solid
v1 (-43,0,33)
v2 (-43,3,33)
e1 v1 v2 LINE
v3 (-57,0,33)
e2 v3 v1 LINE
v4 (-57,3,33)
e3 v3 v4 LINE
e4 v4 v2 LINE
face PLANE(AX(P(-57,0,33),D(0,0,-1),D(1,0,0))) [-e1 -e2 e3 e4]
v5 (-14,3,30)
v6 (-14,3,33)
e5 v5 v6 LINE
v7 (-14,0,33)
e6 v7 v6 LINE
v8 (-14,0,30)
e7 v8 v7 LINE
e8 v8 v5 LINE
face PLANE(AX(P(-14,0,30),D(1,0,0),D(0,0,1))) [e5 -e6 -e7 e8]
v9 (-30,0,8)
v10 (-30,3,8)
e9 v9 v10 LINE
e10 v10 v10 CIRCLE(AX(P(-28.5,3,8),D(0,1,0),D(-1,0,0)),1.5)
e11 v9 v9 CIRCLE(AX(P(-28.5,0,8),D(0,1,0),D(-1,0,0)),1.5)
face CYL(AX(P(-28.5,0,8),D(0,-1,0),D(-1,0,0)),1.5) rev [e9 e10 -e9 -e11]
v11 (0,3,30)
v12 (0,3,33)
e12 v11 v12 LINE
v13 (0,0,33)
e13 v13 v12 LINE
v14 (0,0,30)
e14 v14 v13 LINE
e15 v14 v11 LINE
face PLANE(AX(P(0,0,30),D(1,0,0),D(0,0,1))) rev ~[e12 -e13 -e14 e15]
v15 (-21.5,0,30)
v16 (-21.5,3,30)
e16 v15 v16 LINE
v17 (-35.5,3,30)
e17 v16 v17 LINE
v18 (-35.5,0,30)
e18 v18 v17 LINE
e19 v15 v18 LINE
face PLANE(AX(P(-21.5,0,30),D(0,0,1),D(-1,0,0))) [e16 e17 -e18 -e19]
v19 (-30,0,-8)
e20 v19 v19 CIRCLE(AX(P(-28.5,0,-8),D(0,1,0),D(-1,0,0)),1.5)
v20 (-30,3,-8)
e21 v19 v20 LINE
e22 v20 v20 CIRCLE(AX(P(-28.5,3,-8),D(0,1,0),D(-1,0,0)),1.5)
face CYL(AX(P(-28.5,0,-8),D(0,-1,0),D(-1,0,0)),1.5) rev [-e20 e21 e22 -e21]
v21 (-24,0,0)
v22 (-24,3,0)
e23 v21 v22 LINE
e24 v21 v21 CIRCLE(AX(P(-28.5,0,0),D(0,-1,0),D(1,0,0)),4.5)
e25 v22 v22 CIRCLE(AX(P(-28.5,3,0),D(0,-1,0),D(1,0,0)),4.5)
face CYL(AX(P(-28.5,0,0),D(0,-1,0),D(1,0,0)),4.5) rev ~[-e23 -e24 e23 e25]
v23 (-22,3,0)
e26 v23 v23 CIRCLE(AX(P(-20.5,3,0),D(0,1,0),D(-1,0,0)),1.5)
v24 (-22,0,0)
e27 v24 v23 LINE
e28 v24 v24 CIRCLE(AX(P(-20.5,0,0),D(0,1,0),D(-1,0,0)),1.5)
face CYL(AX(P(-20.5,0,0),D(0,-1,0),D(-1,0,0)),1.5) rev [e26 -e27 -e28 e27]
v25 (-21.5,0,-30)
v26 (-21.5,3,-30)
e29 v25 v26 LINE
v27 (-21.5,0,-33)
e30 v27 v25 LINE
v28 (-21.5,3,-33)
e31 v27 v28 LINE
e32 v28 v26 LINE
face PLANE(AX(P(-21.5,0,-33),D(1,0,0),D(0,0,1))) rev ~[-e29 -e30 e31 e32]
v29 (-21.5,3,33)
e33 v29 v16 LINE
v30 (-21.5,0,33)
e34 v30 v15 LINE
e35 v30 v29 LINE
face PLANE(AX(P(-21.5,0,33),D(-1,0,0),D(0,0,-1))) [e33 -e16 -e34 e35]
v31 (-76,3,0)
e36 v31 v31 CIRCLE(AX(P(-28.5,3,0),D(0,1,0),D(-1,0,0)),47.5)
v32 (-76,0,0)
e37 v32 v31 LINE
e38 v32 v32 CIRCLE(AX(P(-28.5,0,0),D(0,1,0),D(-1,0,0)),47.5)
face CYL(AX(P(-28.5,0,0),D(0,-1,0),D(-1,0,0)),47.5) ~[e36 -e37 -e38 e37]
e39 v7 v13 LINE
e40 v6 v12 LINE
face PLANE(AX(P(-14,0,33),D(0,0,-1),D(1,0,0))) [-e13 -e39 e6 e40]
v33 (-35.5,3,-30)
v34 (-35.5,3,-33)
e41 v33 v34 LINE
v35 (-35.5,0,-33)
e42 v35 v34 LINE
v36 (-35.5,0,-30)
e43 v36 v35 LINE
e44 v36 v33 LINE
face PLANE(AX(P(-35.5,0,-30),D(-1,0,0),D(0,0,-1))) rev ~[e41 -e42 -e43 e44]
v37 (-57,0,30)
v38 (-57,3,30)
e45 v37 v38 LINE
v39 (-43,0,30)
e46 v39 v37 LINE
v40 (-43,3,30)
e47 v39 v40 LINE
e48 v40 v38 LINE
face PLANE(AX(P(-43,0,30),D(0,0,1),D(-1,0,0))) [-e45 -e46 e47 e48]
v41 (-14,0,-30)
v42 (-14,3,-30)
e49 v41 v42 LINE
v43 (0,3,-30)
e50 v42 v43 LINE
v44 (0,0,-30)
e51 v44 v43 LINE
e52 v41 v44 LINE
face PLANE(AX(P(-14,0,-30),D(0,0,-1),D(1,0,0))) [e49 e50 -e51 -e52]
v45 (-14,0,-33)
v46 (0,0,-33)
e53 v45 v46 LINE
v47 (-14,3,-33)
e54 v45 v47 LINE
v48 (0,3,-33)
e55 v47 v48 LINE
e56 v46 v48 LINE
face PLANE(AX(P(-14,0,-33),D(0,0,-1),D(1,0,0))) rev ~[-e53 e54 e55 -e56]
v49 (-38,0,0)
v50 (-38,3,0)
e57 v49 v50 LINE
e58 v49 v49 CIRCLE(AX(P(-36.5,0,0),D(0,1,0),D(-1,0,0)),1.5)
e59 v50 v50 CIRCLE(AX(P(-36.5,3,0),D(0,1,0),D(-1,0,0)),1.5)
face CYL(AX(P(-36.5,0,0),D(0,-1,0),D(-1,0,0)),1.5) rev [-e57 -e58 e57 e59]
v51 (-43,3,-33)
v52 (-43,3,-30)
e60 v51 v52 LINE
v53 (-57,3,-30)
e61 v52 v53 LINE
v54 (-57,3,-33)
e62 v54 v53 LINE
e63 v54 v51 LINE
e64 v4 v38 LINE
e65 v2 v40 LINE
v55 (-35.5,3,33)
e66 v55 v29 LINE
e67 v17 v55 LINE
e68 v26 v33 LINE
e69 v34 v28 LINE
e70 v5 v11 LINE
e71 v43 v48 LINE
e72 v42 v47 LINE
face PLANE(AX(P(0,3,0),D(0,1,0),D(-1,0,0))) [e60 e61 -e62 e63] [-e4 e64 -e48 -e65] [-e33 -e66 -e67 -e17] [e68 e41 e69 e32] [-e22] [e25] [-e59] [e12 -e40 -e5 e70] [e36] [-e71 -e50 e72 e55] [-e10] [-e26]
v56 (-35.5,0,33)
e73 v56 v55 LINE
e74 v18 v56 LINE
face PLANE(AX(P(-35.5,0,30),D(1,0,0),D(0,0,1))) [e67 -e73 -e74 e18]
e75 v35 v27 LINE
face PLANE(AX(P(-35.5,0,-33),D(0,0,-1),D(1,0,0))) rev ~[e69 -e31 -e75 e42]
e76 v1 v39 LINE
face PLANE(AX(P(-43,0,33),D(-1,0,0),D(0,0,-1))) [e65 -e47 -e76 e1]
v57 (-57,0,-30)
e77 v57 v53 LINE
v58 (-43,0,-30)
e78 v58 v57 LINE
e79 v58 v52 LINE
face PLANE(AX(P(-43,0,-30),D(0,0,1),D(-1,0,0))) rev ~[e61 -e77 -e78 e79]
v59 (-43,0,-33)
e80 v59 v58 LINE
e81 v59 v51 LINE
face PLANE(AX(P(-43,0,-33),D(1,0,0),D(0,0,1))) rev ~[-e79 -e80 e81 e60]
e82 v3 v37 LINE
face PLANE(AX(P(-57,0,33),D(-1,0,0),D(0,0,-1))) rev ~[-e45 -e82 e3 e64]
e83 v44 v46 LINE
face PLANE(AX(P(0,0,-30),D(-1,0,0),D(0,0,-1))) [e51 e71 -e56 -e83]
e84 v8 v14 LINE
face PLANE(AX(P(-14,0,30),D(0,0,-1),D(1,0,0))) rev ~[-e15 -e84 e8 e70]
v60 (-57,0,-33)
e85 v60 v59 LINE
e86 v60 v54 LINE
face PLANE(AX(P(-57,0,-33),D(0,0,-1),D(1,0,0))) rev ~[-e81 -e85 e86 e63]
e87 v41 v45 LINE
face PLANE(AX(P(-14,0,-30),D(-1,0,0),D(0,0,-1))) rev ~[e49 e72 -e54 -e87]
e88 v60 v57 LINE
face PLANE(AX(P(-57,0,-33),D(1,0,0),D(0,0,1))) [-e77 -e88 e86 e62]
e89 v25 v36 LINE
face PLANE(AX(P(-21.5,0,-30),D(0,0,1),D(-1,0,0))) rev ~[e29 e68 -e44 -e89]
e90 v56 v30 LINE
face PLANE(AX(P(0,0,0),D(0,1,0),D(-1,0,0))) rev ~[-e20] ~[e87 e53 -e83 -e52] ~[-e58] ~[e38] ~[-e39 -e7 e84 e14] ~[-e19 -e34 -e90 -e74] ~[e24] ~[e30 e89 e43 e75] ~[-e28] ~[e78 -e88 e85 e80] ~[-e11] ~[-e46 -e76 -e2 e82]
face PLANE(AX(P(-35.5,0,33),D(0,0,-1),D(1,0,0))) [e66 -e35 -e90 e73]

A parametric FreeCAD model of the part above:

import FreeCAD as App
import Part
import Sketcher

V = App.Vector

doc = App.newDocument("Part")
body = doc.addObject("PartDesign::Body", "Body")

# Sketch on XZ plane
sketch1 = body.newObject("Sketcher::SketchObject", "Sketch")
sketch1.AttachmentSupport = (doc.getObject("XZ_Plane"), [""])
sketch1.MapMode = "FlatFace"
sketch1.addGeometry(Part.Circle(V(-28.5, 0, 0), V(0, 0, 1), 47.5), False)
sketch1.addGeometry(Part.LineSegment(V(0, -30, 0), V(-14, -30, 0)), False)
sketch1.addGeometry(Part.LineSegment(V(-14, -30, 0), V(-14, -33, 0)), False)
sketch1.addGeometry(Part.LineSegment(V(-14, -33, 0), V(0, -33, 0)), False)
sketch1.addGeometry(Part.LineSegment(V(0, -33, 0), V(0, -30, 0)), False)
sketch1.addGeometry(Part.LineSegment(V(-21.5, -30, 0), V(-35.5, -30, 0)), False)
sketch1.addGeometry(Part.LineSegment(V(-35.5, -30, 0), V(-35.5, -33, 0)), False)
sketch1.addGeometry(Part.LineSegment(V(-35.5, -33, 0), V(-21.5, -33, 0)), False)
sketch1.addGeometry(Part.LineSegment(V(-21.5, -33, 0), V(-21.5, -30, 0)), False)
sketch1.addGeometry(Part.LineSegment(V(-57, -30, 0), V(-57, -33, 0)), False)
sketch1.addGeometry(Part.LineSegment(V(-57, -33, 0), V(-43, -33, 0)), False)
sketch1.addGeometry(Part.LineSegment(V(-43, -33, 0), V(-43, -30, 0)), False)
sketch1.addGeometry(Part.LineSegment(V(-43, -30, 0), V(-57, -30, 0)), False)
sketch1.addGeometry(Part.Circle(V(-28.5, -8, 0), V(0, 0, 1), 1.5), False)
sketch1.addGeometry(Part.Circle(V(-20.5, 0, 0), V(0, 0, 1), 1.5), False)
sketch1.addGeometry(Part.LineSegment(V(-14, 33, 0), V(-14, 30, 0)), False)
sketch1.addGeometry(Part.LineSegment(V(-14, 30, 0), V(0, 30, 0)), False)
sketch1.addGeometry(Part.LineSegment(V(0, 30, 0), V(0, 33, 0)), False)
sketch1.addGeometry(Part.LineSegment(V(0, 33, 0), V(-14, 33, 0)), False)
sketch1.addGeometry(Part.Circle(V(-28.5, 0, 0), V(0, 0, 1), 1.5), False)
sketch1.addGeometry(Part.Circle(V(-36.5, 0, 0), V(0, 0, 1), 1.5), False)
sketch1.addGeometry(Part.Circle(V(-28.5, 8, 0), V(0, 0, 1), 1.5), False)
sketch1.addGeometry(Part.LineSegment(V(-35.5, 33, 0), V(-35.5, 30, 0)), False)
sketch1.addGeometry(Part.LineSegment(V(-35.5, 30, 0), V(-21.5, 30, 0)), False)
sketch1.addGeometry(Part.LineSegment(V(-21.5, 30, 0), V(-21.5, 33, 0)), False)
sketch1.addGeometry(Part.LineSegment(V(-21.5, 33, 0), V(-35.5, 33, 0)), False)
sketch1.addGeometry(Part.LineSegment(V(-43, 33, 0), V(-57, 33, 0)), False)
sketch1.addGeometry(Part.LineSegment(V(-57, 33, 0), V(-57, 30, 0)), False)
sketch1.addGeometry(Part.LineSegment(V(-57, 30, 0), V(-43, 30, 0)), False)
sketch1.addGeometry(Part.LineSegment(V(-43, 30, 0), V(-43, 33, 0)), False)
sketch1.addConstraint(Sketcher.Constraint("Coincident", 1, 2, 2, 1))
sketch1.addConstraint(Sketcher.Constraint("Coincident", 2, 2, 3, 1))
sketch1.addConstraint(Sketcher.Constraint("Coincident", 3, 2, 4, 1))
sketch1.addConstraint(Sketcher.Constraint("Coincident", 4, 2, 1, 1))
sketch1.addConstraint(Sketcher.Constraint("Coincident", 5, 2, 6, 1))
sketch1.addConstraint(Sketcher.Constraint("Coincident", 6, 2, 7, 1))
sketch1.addConstraint(Sketcher.Constraint("Coincident", 7, 2, 8, 1))
sketch1.addConstraint(Sketcher.Constraint("Coincident", 8, 2, 5, 1))
sketch1.addConstraint(Sketcher.Constraint("Coincident", 9, 2, 10, 1))
sketch1.addConstraint(Sketcher.Constraint("Coincident", 10, 2, 11, 1))
sketch1.addConstraint(Sketcher.Constraint("Coincident", 11, 2, 12, 1))
sketch1.addConstraint(Sketcher.Constraint("Coincident", 12, 2, 9, 1))
sketch1.addConstraint(Sketcher.Constraint("Coincident", 15, 2, 16, 1))
sketch1.addConstraint(Sketcher.Constraint("Coincident", 16, 2, 17, 1))
sketch1.addConstraint(Sketcher.Constraint("Coincident", 17, 2, 18, 1))
sketch1.addConstraint(Sketcher.Constraint("Coincident", 18, 2, 15, 1))
sketch1.addConstraint(Sketcher.Constraint("Coincident", 22, 2, 23, 1))
sketch1.addConstraint(Sketcher.Constraint("Coincident", 23, 2, 24, 1))
sketch1.addConstraint(Sketcher.Constraint("Coincident", 24, 2, 25, 1))
sketch1.addConstraint(Sketcher.Constraint("Coincident", 25, 2, 22, 1))
sketch1.addConstraint(Sketcher.Constraint("Coincident", 26, 2, 27, 1))
sketch1.addConstraint(Sketcher.Constraint("Coincident", 27, 2, 28, 1))
sketch1.addConstraint(Sketcher.Constraint("Coincident", 28, 2, 29, 1))
sketch1.addConstraint(Sketcher.Constraint("Coincident", 29, 2, 26, 1))
sketch1.addConstraint(Sketcher.Constraint("Horizontal", 1))
sketch1.addConstraint(Sketcher.Constraint("Vertical", 2))
sketch1.addConstraint(Sketcher.Constraint("Horizontal", 3))
sketch1.addConstraint(Sketcher.Constraint("Vertical", 4))
sketch1.addConstraint(Sketcher.Constraint("Horizontal", 5))
sketch1.addConstraint(Sketcher.Constraint("Vertical", 6))
sketch1.addConstraint(Sketcher.Constraint("Horizontal", 7))
sketch1.addConstraint(Sketcher.Constraint("Vertical", 8))
sketch1.addConstraint(Sketcher.Constraint("Vertical", 9))
sketch1.addConstraint(Sketcher.Constraint("Horizontal", 10))
sketch1.addConstraint(Sketcher.Constraint("Vertical", 11))
sketch1.addConstraint(Sketcher.Constraint("Horizontal", 12))
sketch1.addConstraint(Sketcher.Constraint("Vertical", 15))
sketch1.addConstraint(Sketcher.Constraint("Horizontal", 16))
sketch1.addConstraint(Sketcher.Constraint("Vertical", 17))
sketch1.addConstraint(Sketcher.Constraint("Horizontal", 18))
sketch1.addConstraint(Sketcher.Constraint("Vertical", 22))
sketch1.addConstraint(Sketcher.Constraint("Horizontal", 23))
sketch1.addConstraint(Sketcher.Constraint("Vertical", 24))
sketch1.addConstraint(Sketcher.Constraint("Horizontal", 25))
sketch1.addConstraint(Sketcher.Constraint("Horizontal", 26))
sketch1.addConstraint(Sketcher.Constraint("Vertical", 27))
sketch1.addConstraint(Sketcher.Constraint("Horizontal", 28))
sketch1.addConstraint(Sketcher.Constraint("Vertical", 29))
sketch1.addConstraint(Sketcher.Constraint("Coincident", 19, 3, 0, 3))
sketch1.addConstraint(Sketcher.Constraint("Equal", 13, 14))
sketch1.addConstraint(Sketcher.Constraint("Equal", 14, 19))
sketch1.addConstraint(Sketcher.Constraint("Equal", 19, 20))
sketch1.addConstraint(Sketcher.Constraint("Equal", 20, 21))
sketch1.addConstraint(Sketcher.Constraint("Symmetric", 4, 2, 16, 2, -1, 1))
sketch1.addConstraint(Sketcher.Constraint("Symmetric", 13, 3, 21, 3, -1))
sketch1.addConstraint(Sketcher.Constraint("Symmetric", 3, 2, 17, 2, -1))
sketch1.addConstraint(Sketcher.Constraint("Symmetric", 5, 2, 22, 2, -1))
sketch1.addConstraint(Sketcher.Constraint("Symmetric", 7, 2, 24, 2, -1))
sketch1.addConstraint(Sketcher.Constraint("Symmetric", 9, 2, 26, 2, -1))
sketch1.addConstraint(Sketcher.Constraint("Symmetric", 11, 2, 28, 2, -1))
sketch1.addConstraint(Sketcher.Constraint("PointOnObject", 0, 3, -1))
sketch1.addConstraint(Sketcher.Constraint("PointOnObject", 14, 3, -1))
sketch1.addConstraint(Sketcher.Constraint("PointOnObject", 20, 3, -1))
sketch1.addConstraint(Sketcher.Constraint("Horizontal", 4, 2, 5, 2))
sketch1.addConstraint(Sketcher.Constraint("Horizontal", 3, 2, 6, 2))
sketch1.addConstraint(Sketcher.Constraint("Horizontal", 7, 2, 9, 2))
sketch1.addConstraint(Sketcher.Constraint("Horizontal", 8, 2, 11, 2))
sketch1.addConstraint(Sketcher.Constraint("Vertical", 0, 3, 13, 3))
sketch1.addConstraint(Sketcher.Constraint("Vertical", 2, 2, 15, 2))
sketch1.addConstraint(Sketcher.Constraint("Equal", 3, 5))
sketch1.addConstraint(Sketcher.Constraint("Equal", 7, 10))
sketch1.addConstraint(Sketcher.Constraint("Diameter", 0, 95.0))
sketch1.addConstraint(Sketcher.Constraint("Diameter", 13, 3.0))
sketch1.addConstraint(Sketcher.Constraint("DistanceX", 1, 2, 1, 1, 14.0))
sketch1.addConstraint(Sketcher.Constraint("DistanceY", 2, 2, 2, 1, 3.0))
sketch1.addConstraint(Sketcher.Constraint("DistanceY", 13, 3, -1, 1, 8.0))
sketch1.addConstraint(Sketcher.Constraint("DistanceY", 1, 2, -1, 1, 30.0))
sketch1.addConstraint(Sketcher.Constraint("DistanceX", 9, 2, -1, 1, 57.0))
sketch1.addConstraint(Sketcher.Constraint("DistanceX", 0, 3, 14, 3, 8.0))
sketch1.addConstraint(Sketcher.Constraint("DistanceX", 20, 3, 0, 3, 8.0))
sketch1.addConstraint(Sketcher.Constraint("DistanceX", 5, 2, 13, 3, 7.0))
sketch1.addConstraint(Sketcher.Constraint("DistanceX", 0, 3, -1, 1, 28.5))
pad1 = body.newObject("PartDesign::Pad", "Pad")
pad1.Profile = sketch1
pad1.Length = 3
pad1.Reversed = True

# Sketch on XZ plane
sketch2 = body.newObject("Sketcher::SketchObject", "Sketch001")
sketch2.AttachmentSupport = (doc.getObject("XZ_Plane"), [""])
sketch2.MapMode = "FlatFace"
sketch2.addGeometry(Part.Circle(V(-28.5, 0, 0), V(0, 0, 1), 3.5), False)
sketch2.addConstraint(Sketcher.Constraint("PointOnObject", 0, 3, -1))
sketch2.addConstraint(Sketcher.Constraint("Diameter", 0, 7.0))
sketch2.addConstraint(Sketcher.Constraint("DistanceX", 0, 3, -1, 1, 28.5))
pocket1 = body.newObject("PartDesign::Pocket", "Pocket")
pocket1.Profile = sketch2
pocket1.Length = 10

# Sketch on XZ plane
sketch3 = body.newObject("Sketcher::SketchObject", "Sketch002")
sketch3.AttachmentSupport = (doc.getObject("XZ_Plane"), [""])
sketch3.MapMode = "FlatFace"
sketch3.addGeometry(Part.Circle(V(-28.5, 0, 0), V(0, 0, 1), 4.5), False)
sketch3.addConstraint(Sketcher.Constraint("PointOnObject", 0, 3, -1))
sketch3.addConstraint(Sketcher.Constraint("Diameter", 0, 9.0))
sketch3.addConstraint(Sketcher.Constraint("DistanceX", 0, 3, -1, 1, 28.5))
pocket2 = body.newObject("PartDesign::Pocket", "Pocket001")
pocket2.Profile = sketch3
pocket2.Length = 10

doc.recompute()
